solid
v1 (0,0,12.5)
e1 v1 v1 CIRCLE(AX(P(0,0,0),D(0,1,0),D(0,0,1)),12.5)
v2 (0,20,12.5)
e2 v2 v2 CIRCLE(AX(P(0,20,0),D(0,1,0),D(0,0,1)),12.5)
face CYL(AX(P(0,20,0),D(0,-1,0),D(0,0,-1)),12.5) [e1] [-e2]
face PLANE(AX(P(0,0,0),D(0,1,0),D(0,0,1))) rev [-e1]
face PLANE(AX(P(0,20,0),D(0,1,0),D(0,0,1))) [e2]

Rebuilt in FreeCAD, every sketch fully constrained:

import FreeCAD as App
import Part
import Sketcher
from FreeCAD import Vector

doc = App.newDocument("Part")
body = doc.addObject("PartDesign::Body", "Body")

# Sketch on XZ plane
sketch1 = body.newObject("Sketcher::SketchObject", "Sketch")
sketch1.AttachmentSupport = (doc.getObject("XZ_Plane"), [""])
sketch1.MapMode = "FlatFace"
sketch1.addGeometry(Part.Circle(Vector(0, 0, 0), Vector(0, 0, 1), 12), False)
sketch1.addConstraint([
    Sketcher.Constraint("Coincident", 0, 3, -1, 1),
    Sketcher.Constraint("Diameter", 0, 25.0),
])
pad1 = body.newObject("PartDesign::Pad", "Pad")
pad1.Profile = sketch1
pad1.Length = 20
pad1.Reversed = True

doc.recompute()
